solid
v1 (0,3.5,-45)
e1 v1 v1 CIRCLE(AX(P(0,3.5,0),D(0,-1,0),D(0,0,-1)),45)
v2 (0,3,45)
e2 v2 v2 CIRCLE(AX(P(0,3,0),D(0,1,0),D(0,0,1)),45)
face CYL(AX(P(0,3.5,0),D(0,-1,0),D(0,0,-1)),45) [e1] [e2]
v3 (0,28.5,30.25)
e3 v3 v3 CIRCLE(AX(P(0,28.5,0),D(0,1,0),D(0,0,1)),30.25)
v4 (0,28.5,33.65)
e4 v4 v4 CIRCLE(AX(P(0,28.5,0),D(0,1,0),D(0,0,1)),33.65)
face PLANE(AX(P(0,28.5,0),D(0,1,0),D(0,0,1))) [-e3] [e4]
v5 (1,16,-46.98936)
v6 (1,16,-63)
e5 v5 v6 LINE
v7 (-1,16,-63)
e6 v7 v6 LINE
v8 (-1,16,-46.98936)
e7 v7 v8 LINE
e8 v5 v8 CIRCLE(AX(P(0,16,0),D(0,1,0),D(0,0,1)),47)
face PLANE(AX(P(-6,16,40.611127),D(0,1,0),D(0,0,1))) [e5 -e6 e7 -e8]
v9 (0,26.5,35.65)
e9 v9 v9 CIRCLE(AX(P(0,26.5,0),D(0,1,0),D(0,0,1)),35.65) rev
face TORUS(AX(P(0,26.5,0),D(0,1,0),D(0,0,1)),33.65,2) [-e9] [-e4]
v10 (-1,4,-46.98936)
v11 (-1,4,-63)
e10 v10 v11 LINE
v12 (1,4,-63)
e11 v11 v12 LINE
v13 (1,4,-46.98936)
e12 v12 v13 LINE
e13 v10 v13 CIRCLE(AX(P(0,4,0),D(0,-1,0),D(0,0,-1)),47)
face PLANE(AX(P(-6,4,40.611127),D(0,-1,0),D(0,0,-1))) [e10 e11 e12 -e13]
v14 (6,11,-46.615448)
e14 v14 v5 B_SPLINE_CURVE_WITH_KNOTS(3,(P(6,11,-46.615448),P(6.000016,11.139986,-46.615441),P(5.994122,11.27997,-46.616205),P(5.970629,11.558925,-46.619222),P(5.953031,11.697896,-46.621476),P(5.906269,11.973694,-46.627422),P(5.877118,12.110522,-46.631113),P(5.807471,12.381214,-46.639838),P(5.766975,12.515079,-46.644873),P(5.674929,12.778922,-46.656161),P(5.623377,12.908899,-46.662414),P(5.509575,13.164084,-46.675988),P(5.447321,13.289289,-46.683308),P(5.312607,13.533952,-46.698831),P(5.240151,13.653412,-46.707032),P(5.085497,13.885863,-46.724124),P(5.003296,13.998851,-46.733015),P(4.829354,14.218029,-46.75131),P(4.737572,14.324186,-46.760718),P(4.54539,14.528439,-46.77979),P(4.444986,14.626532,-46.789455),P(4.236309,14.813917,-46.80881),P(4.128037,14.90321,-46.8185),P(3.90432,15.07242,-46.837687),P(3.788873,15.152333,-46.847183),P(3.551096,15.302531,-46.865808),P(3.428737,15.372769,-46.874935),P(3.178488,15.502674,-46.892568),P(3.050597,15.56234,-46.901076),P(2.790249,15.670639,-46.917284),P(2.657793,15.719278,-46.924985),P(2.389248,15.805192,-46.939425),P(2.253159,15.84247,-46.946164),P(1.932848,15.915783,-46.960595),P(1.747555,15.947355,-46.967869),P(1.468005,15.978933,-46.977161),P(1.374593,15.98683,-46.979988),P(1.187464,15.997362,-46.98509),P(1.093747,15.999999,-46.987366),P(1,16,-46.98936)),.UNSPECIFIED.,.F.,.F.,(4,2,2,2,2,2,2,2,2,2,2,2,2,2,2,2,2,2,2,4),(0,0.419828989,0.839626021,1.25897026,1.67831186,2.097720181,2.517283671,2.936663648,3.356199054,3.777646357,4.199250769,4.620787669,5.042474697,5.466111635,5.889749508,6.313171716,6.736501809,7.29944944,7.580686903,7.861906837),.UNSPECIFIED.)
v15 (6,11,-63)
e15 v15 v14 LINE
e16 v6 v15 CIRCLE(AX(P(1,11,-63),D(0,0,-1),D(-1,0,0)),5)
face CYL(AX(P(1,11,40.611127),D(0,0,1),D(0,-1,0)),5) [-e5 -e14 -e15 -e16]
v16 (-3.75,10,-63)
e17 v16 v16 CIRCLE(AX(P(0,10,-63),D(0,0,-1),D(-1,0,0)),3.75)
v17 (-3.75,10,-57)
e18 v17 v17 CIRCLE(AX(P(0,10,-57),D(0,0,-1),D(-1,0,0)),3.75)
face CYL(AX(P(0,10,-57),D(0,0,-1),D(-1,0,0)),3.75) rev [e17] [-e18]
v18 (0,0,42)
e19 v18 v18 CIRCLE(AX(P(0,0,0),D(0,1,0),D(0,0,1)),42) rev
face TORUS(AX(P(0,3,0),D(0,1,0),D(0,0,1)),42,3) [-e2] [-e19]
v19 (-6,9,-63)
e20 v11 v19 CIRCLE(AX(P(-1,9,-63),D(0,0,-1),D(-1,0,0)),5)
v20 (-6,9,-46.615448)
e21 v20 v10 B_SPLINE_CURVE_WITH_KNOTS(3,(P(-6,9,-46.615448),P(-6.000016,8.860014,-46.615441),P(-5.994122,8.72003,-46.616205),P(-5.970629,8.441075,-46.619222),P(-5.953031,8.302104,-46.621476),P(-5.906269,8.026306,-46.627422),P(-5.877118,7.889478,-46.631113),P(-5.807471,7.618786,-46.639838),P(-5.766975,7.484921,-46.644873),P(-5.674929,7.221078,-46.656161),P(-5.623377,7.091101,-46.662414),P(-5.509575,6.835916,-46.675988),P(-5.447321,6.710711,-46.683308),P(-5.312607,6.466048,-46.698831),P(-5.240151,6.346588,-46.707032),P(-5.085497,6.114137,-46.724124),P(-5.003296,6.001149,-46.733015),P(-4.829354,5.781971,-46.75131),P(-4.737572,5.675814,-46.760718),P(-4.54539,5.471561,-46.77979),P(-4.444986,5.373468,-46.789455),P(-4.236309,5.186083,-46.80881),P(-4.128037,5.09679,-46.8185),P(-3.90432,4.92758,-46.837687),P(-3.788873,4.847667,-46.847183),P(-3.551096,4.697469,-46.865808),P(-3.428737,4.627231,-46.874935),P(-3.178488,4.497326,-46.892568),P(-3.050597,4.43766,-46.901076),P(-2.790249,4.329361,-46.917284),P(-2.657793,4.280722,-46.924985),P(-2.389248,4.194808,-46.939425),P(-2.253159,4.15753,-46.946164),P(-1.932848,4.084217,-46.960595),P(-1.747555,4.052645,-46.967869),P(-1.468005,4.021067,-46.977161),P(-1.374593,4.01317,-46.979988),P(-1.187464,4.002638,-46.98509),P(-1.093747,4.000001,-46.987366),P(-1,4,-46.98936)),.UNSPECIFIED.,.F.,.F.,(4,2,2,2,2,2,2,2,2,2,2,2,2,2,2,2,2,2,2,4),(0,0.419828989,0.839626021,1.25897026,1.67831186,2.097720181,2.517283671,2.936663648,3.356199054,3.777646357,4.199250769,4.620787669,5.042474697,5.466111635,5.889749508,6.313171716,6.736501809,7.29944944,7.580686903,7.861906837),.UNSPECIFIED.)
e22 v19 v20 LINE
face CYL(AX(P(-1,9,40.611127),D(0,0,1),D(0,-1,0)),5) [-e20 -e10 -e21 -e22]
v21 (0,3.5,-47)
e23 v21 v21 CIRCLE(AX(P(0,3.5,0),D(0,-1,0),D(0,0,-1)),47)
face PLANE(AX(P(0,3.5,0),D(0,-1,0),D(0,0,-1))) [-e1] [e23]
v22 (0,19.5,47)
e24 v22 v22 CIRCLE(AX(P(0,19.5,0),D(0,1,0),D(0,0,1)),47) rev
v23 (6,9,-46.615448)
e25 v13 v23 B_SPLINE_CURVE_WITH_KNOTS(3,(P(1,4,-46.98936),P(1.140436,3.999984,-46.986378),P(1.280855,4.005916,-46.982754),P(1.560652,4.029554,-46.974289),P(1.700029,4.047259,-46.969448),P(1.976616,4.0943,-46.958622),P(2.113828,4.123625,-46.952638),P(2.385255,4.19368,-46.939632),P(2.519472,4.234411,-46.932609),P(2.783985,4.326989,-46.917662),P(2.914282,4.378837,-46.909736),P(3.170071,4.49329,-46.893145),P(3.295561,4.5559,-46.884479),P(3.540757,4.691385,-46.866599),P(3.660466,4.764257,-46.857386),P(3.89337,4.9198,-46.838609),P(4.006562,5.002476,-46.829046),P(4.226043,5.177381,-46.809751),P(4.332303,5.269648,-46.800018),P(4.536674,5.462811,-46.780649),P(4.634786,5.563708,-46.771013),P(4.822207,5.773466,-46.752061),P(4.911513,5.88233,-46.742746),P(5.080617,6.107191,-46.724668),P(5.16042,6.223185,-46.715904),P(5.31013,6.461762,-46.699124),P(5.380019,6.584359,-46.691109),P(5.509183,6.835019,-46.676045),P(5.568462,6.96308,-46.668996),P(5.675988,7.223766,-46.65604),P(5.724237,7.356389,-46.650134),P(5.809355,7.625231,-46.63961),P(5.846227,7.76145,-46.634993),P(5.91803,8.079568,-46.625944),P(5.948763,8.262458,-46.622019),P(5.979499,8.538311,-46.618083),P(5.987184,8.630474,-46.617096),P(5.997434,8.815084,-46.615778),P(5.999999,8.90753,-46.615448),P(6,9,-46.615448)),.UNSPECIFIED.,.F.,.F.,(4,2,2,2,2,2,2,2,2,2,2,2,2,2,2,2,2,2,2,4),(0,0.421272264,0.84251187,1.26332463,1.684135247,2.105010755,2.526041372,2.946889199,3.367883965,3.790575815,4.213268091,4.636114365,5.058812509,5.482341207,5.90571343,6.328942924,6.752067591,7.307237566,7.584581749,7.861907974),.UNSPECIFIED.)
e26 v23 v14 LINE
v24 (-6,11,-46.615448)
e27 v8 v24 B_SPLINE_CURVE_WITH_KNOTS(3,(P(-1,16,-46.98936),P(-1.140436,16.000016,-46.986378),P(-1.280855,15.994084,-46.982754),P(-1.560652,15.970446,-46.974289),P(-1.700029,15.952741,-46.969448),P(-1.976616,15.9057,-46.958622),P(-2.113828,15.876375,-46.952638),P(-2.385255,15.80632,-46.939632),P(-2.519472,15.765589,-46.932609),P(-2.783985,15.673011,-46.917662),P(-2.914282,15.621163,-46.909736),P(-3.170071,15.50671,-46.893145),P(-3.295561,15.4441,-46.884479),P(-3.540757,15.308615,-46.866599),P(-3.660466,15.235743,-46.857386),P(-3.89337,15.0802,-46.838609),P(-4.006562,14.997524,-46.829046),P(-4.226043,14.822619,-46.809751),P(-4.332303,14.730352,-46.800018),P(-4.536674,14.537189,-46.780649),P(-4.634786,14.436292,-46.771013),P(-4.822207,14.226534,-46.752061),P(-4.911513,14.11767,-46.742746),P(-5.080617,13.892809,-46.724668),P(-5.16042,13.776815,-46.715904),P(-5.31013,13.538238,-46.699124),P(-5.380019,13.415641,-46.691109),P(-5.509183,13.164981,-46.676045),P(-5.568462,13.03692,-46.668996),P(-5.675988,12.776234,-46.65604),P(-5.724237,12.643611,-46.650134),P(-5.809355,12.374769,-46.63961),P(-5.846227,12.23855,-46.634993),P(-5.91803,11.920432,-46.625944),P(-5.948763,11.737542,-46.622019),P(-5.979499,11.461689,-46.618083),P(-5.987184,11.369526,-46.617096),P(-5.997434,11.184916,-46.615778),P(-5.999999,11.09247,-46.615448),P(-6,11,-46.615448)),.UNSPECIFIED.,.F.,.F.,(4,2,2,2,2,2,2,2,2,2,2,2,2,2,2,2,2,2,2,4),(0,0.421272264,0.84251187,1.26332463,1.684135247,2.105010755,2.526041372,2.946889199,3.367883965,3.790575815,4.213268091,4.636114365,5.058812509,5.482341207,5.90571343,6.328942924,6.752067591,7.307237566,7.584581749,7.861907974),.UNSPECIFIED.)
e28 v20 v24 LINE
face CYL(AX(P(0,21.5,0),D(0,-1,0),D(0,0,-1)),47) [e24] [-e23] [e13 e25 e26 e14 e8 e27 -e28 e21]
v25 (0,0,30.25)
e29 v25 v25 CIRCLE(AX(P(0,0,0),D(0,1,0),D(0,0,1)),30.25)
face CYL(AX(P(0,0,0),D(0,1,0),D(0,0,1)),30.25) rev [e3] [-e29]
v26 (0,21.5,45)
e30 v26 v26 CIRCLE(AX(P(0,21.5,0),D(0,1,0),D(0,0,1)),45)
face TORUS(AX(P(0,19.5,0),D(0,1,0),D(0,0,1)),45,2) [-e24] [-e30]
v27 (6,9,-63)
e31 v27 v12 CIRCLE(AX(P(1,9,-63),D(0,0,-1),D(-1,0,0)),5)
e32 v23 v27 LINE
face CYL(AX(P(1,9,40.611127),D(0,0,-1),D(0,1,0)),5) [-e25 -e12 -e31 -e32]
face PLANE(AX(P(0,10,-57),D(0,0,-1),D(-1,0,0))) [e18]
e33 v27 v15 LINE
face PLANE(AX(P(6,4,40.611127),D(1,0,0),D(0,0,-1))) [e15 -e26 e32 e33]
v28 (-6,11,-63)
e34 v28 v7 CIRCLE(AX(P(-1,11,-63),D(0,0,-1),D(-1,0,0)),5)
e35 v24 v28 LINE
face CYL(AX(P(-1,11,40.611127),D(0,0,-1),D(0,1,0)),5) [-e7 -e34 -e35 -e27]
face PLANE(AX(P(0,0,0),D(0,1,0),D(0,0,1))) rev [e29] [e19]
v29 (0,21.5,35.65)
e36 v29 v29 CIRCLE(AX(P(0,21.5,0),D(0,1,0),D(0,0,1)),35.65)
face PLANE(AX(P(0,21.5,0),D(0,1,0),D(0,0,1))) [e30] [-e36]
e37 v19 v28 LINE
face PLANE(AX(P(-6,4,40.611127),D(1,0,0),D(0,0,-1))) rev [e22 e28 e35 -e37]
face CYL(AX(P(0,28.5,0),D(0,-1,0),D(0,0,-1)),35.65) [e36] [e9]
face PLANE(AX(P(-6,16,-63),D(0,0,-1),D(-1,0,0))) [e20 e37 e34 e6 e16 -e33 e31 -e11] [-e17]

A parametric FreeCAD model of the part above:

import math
import FreeCAD as App
import Part
import Sketcher
from FreeCAD import Vector
Q = App.Units.Quantity


def edges_at(feature, points):
    """Names of the edges that pass closest to the given points."""
    edges = feature.Shape.Edges
    near = lambda p: min(range(len(edges)), key=lambda i: edges[i].distToShape(Part.Vertex(*p))[0])
    return sorted({f"Edge{near(p) + 1}" for p in points})


def add_polygon(sketch, points):
    """Adds a closed chain of lines whose ends are joined by coincident constraints."""
    first, n = sketch.GeometryCount, len(points)
    for a, b in zip(points, points[1:] + points[:1]):
        sketch.addGeometry(Part.LineSegment(App.Vector(*a, 0), App.Vector(*b, 0)), False)
    for i in range(n):
        sketch.addConstraint(Sketcher.Constraint("Coincident", first + i, 2, first + (i + 1) % n, 1))

doc = App.newDocument("Part")
params = doc.addObject("Spreadsheet::Sheet", "Params")
for row, (alias, value) in enumerate([
    ("sketch1_diameter", "94 mm"),
    ("pad1_length", "21.5 mm"),
    ("sketch2_diameter", "71.3 mm"),
    ("pad2_length", "7 mm"),
    ("sketch3_diameter", "60.5 mm"),
    ("fillet_radius", "2 mm"),
    ("sketch4_width", "12 mm"),
    ("pad3_length", "6 mm"),
    ("pad3_length2", "6 mm"),
    ("sketch5_radius", "30.25 mm"),
    ("fillet2_radius", "5 mm"),
    ("sketch6_diameter", "7.5 mm"),
    ("pocket3_length", "6 mm"),
    ("sketch7_diameter", "94 mm"),
    ("sketch7_diameter2", "90 mm"),
    ("pocket4_length", "3.5 mm"),
    ("fillet3_radius", "3 mm"),
], start=1):
    params.set(f"A{row}", alias)
    params.set(f"B{row}", "=" + value)
    params.setAlias(f"B{row}", alias)

body = doc.addObject("PartDesign::Body", "Body")

# Sketch on XZ plane
sketch1 = doc.addObject("Sketcher::SketchObject", "Sketch")
body.addObject(sketch1)
sketch1.AttachmentSupport = (doc.XZ_Plane, [""])
sketch1.MapMode = "FlatFace"
sketch1.addGeometry(Part.Circle(Vector(0, 0, 0), Vector(0, 0, 1), 47), False)
sketch1.addConstraint([
    Sketcher.Constraint("Coincident", 0, 3, -1, 1),
    Sketcher.Constraint("Diameter", 0, Q("94 mm")),
])
sketch1.setExpression("Constraints[1]", "Params.sketch1_diameter")
pad1 = doc.addObject("PartDesign::Pad", "Pad")
body.addObject(pad1)
pad1.Profile = sketch1
pad1.setExpression("Length", "Params.pad1_length")
pad1.Reversed = True

# Sketch on XZ plane
sketch2 = doc.addObject("Sketcher::SketchObject", "Sketch001")
body.addObject(sketch2)
sketch2.AttachmentSupport = (doc.XZ_Plane, [""])
sketch2.MapMode = "FlatFace"
sketch2.AttachmentOffset = App.Placement(Vector(0, 0, -21.5), App.Rotation())
sketch2.addGeometry(Part.Circle(Vector(0, 0, 0), Vector(0, 0, 1), 36), False)
sketch2.addConstraint([
    Sketcher.Constraint("Coincident", 0, 3, -1, 1),
    Sketcher.Constraint("Diameter", 0, Q("71.3 mm")),
])
sketch2.setExpression("Constraints[1]", "Params.sketch2_diameter")
pad2 = doc.addObject("PartDesign::Pad", "Pad001")
body.addObject(pad2)
pad2.Profile = sketch2
pad2.setExpression("Length", "Params.pad2_length")
pad2.Reversed = True

# Sketch on XZ plane
sketch3 = doc.addObject("Sketcher::SketchObject", "Sketch002")
body.addObject(sketch3)
sketch3.AttachmentSupport = (doc.XZ_Plane, [""])
sketch3.MapMode = "FlatFace"
sketch3.AttachmentOffset = App.Placement(Vector(0, 0, -28.5), App.Rotation())
sketch3.addGeometry(Part.Circle(Vector(0, 0, 0), Vector(0, 0, 1), 30), False)
sketch3.addConstraint([
    Sketcher.Constraint("Coincident", 0, 3, -1, 1),
    Sketcher.Constraint("Diameter", 0, Q("60.5 mm")),
])
sketch3.setExpression("Constraints[1]", "Params.sketch3_diameter")
pocket1 = doc.addObject("PartDesign::Pocket", "Pocket")
body.addObject(pocket1)
pocket1.Profile = sketch3
pocket1.Type = "ThroughAll"
pocket1.Reversed = True
doc.recompute()

fillet = doc.addObject("PartDesign::Fillet", "Fillet")
body.addObject(fillet)
fillet.Base = (pocket1, edges_at(pocket1, [(0, 21.5, -47), (0, 28.5, -35.65)]))
fillet.setExpression("Radius", "Params.fillet_radius")

# Sketch on YZ plane
sketch4 = doc.addObject("Sketcher::SketchObject", "Sketch003")
body.addObject(sketch4)
sketch4.AttachmentSupport = (doc.YZ_Plane, [""])
sketch4.MapMode = "FlatFace"
add_polygon(sketch4, [(16, 41), (4, 41), (4, -63), (16, -63)])  # lines 0-3
sketch4.addConstraint([
    Sketcher.Constraint("Horizontal", 0),
    Sketcher.Constraint("Vertical", 1),
    Sketcher.Constraint("Horizontal", 2),
    Sketcher.Constraint("Vertical", 3),
    Sketcher.Constraint("DistanceX", 0, 2, 0, 1, Q("12 mm")),
    Sketcher.Constraint("DistanceX", -1, 1, 0, 2, Q("4 mm")),
    Sketcher.Constraint("DistanceY", 1, 2, -1, 1, Q("63 mm")),
    Sketcher.Constraint("DistanceY", 1, 2, 1, 1, Q("103.611127 mm")),
])
sketch4.setExpression("Constraints[8]", "Params.sketch4_width")
pad3 = doc.addObject("PartDesign::Pad", "Pad002")
body.addObject(pad3)
pad3.Profile = sketch4
pad3.Type = "TwoLengths"
pad3.setExpression("Length", "Params.pad3_length")
pad3.setExpression("Length2", "Params.pad3_length2")

# Sketch on XZ plane
sketch5 = doc.addObject("Sketcher::SketchObject", "Sketch004")
body.addObject(sketch5)
sketch5.AttachmentSupport = (doc.XZ_Plane, [""])
sketch5.MapMode = "FlatFace"
sketch5.AttachmentOffset = App.Placement(Vector(0, 0, -16), App.Rotation())
sketch5.addGeometry([
    Part.LineSegment(Vector(-6, -30, 0), Vector(-6, 30, 0)),
    Part.ArcOfCircle(Part.Circle(Vector(0, 0, 0), Vector(0, 0, 1), 30), math.radians(79), math.radians(101)),
    Part.LineSegment(Vector(6, 30, 0), Vector(6, -30, 0)),
    Part.ArcOfCircle(Part.Circle(Vector(0, 0, 0), Vector(0, 0, 1), 30), math.radians(-101), math.radians(-79)),
], False)
sketch5.addConstraint([
    Sketcher.Constraint("Coincident", 0, 2, 1, 2),
    Sketcher.Constraint("Coincident", 1, 1, 2, 1),
    Sketcher.Constraint("Coincident", 2, 2, 3, 2),
    Sketcher.Constraint("Coincident", 3, 1, 0, 1),
    Sketcher.Constraint("Vertical", 0),
    Sketcher.Constraint("Vertical", 2),
    Sketcher.Constraint("Coincident", 1, 3, -1, 1),
    Sketcher.Constraint("Coincident", 3, 3, -1, 1),
    Sketcher.Constraint("Equal", 1, 3),
    Sketcher.Constraint("Horizontal", 0, 2, 1, 1),
    Sketcher.Constraint("Radius", 1, Q("30.25 mm")),
    Sketcher.Constraint("DistanceX", 0, 2, -1, 1, Q("6 mm")),
])
sketch5.setExpression("Constraints[10]", "Params.sketch5_radius")
pocket2 = doc.addObject("PartDesign::Pocket", "Pocket001")
body.addObject(pocket2)
pocket2.Profile = sketch5
pocket2.Type = "ThroughAll"
pocket2.Reversed = True
doc.recompute()

fillet2 = doc.addObject("PartDesign::Fillet", "Fillet001")
body.addObject(fillet2)
fillet2.Base = (pocket2, edges_at(pocket2, [
    (-6, 16, -54.808),
    (-6, 4, -54.808),
    (6, 4, -54.808),
    (6, 16, -54.808),
]))
fillet2.setExpression("Radius", "Params.fillet2_radius")

# Sketch on XY plane
sketch6 = doc.addObject("Sketcher::SketchObject", "Sketch005")
body.addObject(sketch6)
sketch6.AttachmentSupport = (doc.XY_Plane, [""])
sketch6.MapMode = "FlatFace"
sketch6.AttachmentOffset = App.Placement(Vector(0, 0, -63), App.Rotation())
sketch6.addGeometry(Part.Circle(Vector(0, 10, 0), Vector(0, 0, 1), 3.8), False)
sketch6.addConstraint([
    Sketcher.Constraint("PointOnObject", 0, 3, -2),
    Sketcher.Constraint("Diameter", 0, Q("7.5 mm")),
    Sketcher.Constraint("DistanceY", -1, 1, 0, 3, Q("10 mm")),
])
sketch6.setExpression("Constraints[1]", "Params.sketch6_diameter")
pocket3 = doc.addObject("PartDesign::Pocket", "Pocket002")
body.addObject(pocket3)
pocket3.Profile = sketch6
pocket3.setExpression("Length", "Params.pocket3_length")
pocket3.Reversed = True

# Sketch on XZ plane
sketch7 = doc.addObject("Sketcher::SketchObject", "Sketch006")
body.addObject(sketch7)
sketch7.AttachmentSupport = (doc.XZ_Plane, [""])
sketch7.MapMode = "FlatFace"
sketch7.addGeometry([
    Part.Circle(Vector(0, 0, 0), Vector(0, 0, 1), 47),
    Part.Circle(Vector(0, 0, 0), Vector(0, 0, 1), 45),
], False)
sketch7.addConstraint([
    Sketcher.Constraint("Coincident", 0, 3, -1, 1),
    Sketcher.Constraint("Coincident", 1, 3, -1, 1),
    Sketcher.Constraint("Diameter", 0, Q("94 mm")),
    Sketcher.Constraint("Diameter", 1, Q("90 mm")),
])
sketch7.setExpression("Constraints[2]", "Params.sketch7_diameter")
sketch7.setExpression("Constraints[3]", "Params.sketch7_diameter2")
pocket4 = doc.addObject("PartDesign::Pocket", "Pocket003")
body.addObject(pocket4)
pocket4.Profile = sketch7
pocket4.setExpression("Length", "Params.pocket4_length")
doc.recompute()

fillet3 = doc.addObject("PartDesign::Fillet", "Fillet002")
body.addObject(fillet3)
fillet3.Base = (pocket4, edges_at(pocket4, [(0, 0, 45)]))
fillet3.setExpression("Radius", "Params.fillet3_radius")

doc.recompute()
